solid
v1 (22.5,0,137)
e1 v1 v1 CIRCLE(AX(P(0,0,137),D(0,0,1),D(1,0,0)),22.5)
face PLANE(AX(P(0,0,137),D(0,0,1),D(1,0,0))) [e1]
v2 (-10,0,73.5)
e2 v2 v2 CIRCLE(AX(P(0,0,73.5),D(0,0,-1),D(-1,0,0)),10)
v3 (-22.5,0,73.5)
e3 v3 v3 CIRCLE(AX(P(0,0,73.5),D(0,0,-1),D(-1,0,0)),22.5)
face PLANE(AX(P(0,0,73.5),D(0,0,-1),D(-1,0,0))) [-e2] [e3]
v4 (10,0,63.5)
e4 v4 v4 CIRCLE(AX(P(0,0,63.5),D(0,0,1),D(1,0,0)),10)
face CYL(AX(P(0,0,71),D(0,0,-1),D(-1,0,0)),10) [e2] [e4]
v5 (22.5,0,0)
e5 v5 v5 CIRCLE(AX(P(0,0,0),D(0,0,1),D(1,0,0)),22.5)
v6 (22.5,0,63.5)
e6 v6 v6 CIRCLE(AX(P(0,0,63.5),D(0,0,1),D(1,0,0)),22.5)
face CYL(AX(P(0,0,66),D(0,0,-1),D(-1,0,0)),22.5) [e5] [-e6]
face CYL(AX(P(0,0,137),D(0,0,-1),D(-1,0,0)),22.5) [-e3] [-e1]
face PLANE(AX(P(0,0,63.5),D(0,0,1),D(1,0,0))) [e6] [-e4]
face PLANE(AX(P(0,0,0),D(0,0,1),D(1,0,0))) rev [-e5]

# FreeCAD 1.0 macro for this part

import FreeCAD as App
import Part
import Sketcher
from FreeCAD import Vector
Q = App.Units.Quantity

doc = App.newDocument("Part")
body = doc.addObject("PartDesign::Body", "Body")

sketch1 = body.newObject("Sketcher::SketchObject", "Sketch")
sketch1.AttachmentSupport = (doc.getObject("XY_Plane"), [""])
sketch1.MapMode = "FlatFace"
sketch1.addGeometry(Part.Circle(Vector(0, 0, 0), Vector(0, 0, 1), 22), False)
sketch1.addConstraint(Sketcher.Constraint("Coincident", 0, 3, -1, 1))
sketch1.addConstraint(Sketcher.Constraint("Diameter", 0, Q("45 mm")))
pad1 = body.newObject("PartDesign::Pad", "Pad")
pad1.Profile = sketch1
pad1.Length = 66

sketch2 = body.newObject("Sketcher::SketchObject", "Sketch001")
sketch2.AttachmentSupport = (doc.getObject("XY_Plane"), [""])
sketch2.MapMode = "FlatFace"
sketch2.AttachmentOffset = App.Placement(Vector(0, 0, 66), App.Rotation())
sketch2.addGeometry(Part.Circle(Vector(0, 0, 0), Vector(0, 0, 1), 10), False)
sketch2.addConstraint(Sketcher.Constraint("Coincident", 0, 3, -1, 1))
sketch2.addConstraint(Sketcher.Constraint("Diameter", 0, Q("20 mm")))
pad2 = body.newObject("PartDesign::Pad", "Pad001")
pad2.Profile = sketch2
pad2.Length = 5

sketch3 = body.newObject("Sketcher::SketchObject", "Sketch002")
sketch3.AttachmentSupport = (doc.getObject("XY_Plane"), [""])
sketch3.MapMode = "FlatFace"
sketch3.AttachmentOffset = App.Placement(Vector(0, 0, 71), App.Rotation())
sketch3.addGeometry(Part.Circle(Vector(0, 0, 0), Vector(0, 0, 1), 22), False)
sketch3.addConstraint(Sketcher.Constraint("Coincident", 0, 3, -1, 1))
sketch3.addConstraint(Sketcher.Constraint("Diameter", 0, Q("45 mm")))
pad3 = body.newObject("PartDesign::Pad", "Pad002")
pad3.Profile = sketch3
pad3.Length = 66

sketch4 = body.newObject("Sketcher::SketchObject", "Sketch003")
sketch4.AttachmentSupport = (doc.getObject("XY_Plane"), [""])
sketch4.MapMode = "FlatFace"
sketch4.AttachmentOffset = App.Placement(Vector(0, 0, 71), App.Rotation())
sketch4.addGeometry(Part.Circle(Vector(0, 0, 0), Vector(0, 0, 1), 22), False)
sketch4.addGeometry(Part.Circle(Vector(0, 0, 0), Vector(0, 0, 1), 10), False)
sketch4.addConstraint(Sketcher.Constraint("Coincident", 0, 3, -1, 1))
sketch4.addConstraint(Sketcher.Constraint("Coincident", 1, 3, -1, 1))
sketch4.addConstraint(Sketcher.Constraint("Diameter", 0, Q("45 mm")))
sketch4.addConstraint(Sketcher.Constraint("Diameter", 1, Q("20 mm")))
pocket1 = body.newObject("PartDesign::Pocket", "Pocket")
pocket1.Profile = sketch4
pocket1.Length = 2.5
pocket1.Reversed = True

sketch5 = body.newObject("Sketcher::SketchObject", "Sketch004")
sketch5.AttachmentSupport = (doc.getObject("XY_Plane"), [""])
sketch5.MapMode = "FlatFace"
sketch5.AttachmentOffset = App.Placement(Vector(0, 0, 63.5), App.Rotation())
sketch5.addGeometry(Part.Circle(Vector(0, 0, 0), Vector(0, 0, 1), 22), False)
sketch5.addGeometry(Part.Circle(Vector(0, 0, 0), Vector(0, 0, 1), 10), False)
sketch5.addConstraint(Sketcher.Constraint("Coincident", 0, 3, -1, 1))
sketch5.addConstraint(Sketcher.Constraint("Coincident", 1, 3, -1, 1))
sketch5.addConstraint(Sketcher.Constraint("Diameter", 0, Q("45 mm")))
sketch5.addConstraint(Sketcher.Constraint("Diameter", 1, Q("20 mm")))
pocket2 = body.newObject("PartDesign::Pocket", "Pocket001")
pocket2.Profile = sketch5
pocket2.Length = 2.5
pocket2.Reversed = True

doc.recompute()
